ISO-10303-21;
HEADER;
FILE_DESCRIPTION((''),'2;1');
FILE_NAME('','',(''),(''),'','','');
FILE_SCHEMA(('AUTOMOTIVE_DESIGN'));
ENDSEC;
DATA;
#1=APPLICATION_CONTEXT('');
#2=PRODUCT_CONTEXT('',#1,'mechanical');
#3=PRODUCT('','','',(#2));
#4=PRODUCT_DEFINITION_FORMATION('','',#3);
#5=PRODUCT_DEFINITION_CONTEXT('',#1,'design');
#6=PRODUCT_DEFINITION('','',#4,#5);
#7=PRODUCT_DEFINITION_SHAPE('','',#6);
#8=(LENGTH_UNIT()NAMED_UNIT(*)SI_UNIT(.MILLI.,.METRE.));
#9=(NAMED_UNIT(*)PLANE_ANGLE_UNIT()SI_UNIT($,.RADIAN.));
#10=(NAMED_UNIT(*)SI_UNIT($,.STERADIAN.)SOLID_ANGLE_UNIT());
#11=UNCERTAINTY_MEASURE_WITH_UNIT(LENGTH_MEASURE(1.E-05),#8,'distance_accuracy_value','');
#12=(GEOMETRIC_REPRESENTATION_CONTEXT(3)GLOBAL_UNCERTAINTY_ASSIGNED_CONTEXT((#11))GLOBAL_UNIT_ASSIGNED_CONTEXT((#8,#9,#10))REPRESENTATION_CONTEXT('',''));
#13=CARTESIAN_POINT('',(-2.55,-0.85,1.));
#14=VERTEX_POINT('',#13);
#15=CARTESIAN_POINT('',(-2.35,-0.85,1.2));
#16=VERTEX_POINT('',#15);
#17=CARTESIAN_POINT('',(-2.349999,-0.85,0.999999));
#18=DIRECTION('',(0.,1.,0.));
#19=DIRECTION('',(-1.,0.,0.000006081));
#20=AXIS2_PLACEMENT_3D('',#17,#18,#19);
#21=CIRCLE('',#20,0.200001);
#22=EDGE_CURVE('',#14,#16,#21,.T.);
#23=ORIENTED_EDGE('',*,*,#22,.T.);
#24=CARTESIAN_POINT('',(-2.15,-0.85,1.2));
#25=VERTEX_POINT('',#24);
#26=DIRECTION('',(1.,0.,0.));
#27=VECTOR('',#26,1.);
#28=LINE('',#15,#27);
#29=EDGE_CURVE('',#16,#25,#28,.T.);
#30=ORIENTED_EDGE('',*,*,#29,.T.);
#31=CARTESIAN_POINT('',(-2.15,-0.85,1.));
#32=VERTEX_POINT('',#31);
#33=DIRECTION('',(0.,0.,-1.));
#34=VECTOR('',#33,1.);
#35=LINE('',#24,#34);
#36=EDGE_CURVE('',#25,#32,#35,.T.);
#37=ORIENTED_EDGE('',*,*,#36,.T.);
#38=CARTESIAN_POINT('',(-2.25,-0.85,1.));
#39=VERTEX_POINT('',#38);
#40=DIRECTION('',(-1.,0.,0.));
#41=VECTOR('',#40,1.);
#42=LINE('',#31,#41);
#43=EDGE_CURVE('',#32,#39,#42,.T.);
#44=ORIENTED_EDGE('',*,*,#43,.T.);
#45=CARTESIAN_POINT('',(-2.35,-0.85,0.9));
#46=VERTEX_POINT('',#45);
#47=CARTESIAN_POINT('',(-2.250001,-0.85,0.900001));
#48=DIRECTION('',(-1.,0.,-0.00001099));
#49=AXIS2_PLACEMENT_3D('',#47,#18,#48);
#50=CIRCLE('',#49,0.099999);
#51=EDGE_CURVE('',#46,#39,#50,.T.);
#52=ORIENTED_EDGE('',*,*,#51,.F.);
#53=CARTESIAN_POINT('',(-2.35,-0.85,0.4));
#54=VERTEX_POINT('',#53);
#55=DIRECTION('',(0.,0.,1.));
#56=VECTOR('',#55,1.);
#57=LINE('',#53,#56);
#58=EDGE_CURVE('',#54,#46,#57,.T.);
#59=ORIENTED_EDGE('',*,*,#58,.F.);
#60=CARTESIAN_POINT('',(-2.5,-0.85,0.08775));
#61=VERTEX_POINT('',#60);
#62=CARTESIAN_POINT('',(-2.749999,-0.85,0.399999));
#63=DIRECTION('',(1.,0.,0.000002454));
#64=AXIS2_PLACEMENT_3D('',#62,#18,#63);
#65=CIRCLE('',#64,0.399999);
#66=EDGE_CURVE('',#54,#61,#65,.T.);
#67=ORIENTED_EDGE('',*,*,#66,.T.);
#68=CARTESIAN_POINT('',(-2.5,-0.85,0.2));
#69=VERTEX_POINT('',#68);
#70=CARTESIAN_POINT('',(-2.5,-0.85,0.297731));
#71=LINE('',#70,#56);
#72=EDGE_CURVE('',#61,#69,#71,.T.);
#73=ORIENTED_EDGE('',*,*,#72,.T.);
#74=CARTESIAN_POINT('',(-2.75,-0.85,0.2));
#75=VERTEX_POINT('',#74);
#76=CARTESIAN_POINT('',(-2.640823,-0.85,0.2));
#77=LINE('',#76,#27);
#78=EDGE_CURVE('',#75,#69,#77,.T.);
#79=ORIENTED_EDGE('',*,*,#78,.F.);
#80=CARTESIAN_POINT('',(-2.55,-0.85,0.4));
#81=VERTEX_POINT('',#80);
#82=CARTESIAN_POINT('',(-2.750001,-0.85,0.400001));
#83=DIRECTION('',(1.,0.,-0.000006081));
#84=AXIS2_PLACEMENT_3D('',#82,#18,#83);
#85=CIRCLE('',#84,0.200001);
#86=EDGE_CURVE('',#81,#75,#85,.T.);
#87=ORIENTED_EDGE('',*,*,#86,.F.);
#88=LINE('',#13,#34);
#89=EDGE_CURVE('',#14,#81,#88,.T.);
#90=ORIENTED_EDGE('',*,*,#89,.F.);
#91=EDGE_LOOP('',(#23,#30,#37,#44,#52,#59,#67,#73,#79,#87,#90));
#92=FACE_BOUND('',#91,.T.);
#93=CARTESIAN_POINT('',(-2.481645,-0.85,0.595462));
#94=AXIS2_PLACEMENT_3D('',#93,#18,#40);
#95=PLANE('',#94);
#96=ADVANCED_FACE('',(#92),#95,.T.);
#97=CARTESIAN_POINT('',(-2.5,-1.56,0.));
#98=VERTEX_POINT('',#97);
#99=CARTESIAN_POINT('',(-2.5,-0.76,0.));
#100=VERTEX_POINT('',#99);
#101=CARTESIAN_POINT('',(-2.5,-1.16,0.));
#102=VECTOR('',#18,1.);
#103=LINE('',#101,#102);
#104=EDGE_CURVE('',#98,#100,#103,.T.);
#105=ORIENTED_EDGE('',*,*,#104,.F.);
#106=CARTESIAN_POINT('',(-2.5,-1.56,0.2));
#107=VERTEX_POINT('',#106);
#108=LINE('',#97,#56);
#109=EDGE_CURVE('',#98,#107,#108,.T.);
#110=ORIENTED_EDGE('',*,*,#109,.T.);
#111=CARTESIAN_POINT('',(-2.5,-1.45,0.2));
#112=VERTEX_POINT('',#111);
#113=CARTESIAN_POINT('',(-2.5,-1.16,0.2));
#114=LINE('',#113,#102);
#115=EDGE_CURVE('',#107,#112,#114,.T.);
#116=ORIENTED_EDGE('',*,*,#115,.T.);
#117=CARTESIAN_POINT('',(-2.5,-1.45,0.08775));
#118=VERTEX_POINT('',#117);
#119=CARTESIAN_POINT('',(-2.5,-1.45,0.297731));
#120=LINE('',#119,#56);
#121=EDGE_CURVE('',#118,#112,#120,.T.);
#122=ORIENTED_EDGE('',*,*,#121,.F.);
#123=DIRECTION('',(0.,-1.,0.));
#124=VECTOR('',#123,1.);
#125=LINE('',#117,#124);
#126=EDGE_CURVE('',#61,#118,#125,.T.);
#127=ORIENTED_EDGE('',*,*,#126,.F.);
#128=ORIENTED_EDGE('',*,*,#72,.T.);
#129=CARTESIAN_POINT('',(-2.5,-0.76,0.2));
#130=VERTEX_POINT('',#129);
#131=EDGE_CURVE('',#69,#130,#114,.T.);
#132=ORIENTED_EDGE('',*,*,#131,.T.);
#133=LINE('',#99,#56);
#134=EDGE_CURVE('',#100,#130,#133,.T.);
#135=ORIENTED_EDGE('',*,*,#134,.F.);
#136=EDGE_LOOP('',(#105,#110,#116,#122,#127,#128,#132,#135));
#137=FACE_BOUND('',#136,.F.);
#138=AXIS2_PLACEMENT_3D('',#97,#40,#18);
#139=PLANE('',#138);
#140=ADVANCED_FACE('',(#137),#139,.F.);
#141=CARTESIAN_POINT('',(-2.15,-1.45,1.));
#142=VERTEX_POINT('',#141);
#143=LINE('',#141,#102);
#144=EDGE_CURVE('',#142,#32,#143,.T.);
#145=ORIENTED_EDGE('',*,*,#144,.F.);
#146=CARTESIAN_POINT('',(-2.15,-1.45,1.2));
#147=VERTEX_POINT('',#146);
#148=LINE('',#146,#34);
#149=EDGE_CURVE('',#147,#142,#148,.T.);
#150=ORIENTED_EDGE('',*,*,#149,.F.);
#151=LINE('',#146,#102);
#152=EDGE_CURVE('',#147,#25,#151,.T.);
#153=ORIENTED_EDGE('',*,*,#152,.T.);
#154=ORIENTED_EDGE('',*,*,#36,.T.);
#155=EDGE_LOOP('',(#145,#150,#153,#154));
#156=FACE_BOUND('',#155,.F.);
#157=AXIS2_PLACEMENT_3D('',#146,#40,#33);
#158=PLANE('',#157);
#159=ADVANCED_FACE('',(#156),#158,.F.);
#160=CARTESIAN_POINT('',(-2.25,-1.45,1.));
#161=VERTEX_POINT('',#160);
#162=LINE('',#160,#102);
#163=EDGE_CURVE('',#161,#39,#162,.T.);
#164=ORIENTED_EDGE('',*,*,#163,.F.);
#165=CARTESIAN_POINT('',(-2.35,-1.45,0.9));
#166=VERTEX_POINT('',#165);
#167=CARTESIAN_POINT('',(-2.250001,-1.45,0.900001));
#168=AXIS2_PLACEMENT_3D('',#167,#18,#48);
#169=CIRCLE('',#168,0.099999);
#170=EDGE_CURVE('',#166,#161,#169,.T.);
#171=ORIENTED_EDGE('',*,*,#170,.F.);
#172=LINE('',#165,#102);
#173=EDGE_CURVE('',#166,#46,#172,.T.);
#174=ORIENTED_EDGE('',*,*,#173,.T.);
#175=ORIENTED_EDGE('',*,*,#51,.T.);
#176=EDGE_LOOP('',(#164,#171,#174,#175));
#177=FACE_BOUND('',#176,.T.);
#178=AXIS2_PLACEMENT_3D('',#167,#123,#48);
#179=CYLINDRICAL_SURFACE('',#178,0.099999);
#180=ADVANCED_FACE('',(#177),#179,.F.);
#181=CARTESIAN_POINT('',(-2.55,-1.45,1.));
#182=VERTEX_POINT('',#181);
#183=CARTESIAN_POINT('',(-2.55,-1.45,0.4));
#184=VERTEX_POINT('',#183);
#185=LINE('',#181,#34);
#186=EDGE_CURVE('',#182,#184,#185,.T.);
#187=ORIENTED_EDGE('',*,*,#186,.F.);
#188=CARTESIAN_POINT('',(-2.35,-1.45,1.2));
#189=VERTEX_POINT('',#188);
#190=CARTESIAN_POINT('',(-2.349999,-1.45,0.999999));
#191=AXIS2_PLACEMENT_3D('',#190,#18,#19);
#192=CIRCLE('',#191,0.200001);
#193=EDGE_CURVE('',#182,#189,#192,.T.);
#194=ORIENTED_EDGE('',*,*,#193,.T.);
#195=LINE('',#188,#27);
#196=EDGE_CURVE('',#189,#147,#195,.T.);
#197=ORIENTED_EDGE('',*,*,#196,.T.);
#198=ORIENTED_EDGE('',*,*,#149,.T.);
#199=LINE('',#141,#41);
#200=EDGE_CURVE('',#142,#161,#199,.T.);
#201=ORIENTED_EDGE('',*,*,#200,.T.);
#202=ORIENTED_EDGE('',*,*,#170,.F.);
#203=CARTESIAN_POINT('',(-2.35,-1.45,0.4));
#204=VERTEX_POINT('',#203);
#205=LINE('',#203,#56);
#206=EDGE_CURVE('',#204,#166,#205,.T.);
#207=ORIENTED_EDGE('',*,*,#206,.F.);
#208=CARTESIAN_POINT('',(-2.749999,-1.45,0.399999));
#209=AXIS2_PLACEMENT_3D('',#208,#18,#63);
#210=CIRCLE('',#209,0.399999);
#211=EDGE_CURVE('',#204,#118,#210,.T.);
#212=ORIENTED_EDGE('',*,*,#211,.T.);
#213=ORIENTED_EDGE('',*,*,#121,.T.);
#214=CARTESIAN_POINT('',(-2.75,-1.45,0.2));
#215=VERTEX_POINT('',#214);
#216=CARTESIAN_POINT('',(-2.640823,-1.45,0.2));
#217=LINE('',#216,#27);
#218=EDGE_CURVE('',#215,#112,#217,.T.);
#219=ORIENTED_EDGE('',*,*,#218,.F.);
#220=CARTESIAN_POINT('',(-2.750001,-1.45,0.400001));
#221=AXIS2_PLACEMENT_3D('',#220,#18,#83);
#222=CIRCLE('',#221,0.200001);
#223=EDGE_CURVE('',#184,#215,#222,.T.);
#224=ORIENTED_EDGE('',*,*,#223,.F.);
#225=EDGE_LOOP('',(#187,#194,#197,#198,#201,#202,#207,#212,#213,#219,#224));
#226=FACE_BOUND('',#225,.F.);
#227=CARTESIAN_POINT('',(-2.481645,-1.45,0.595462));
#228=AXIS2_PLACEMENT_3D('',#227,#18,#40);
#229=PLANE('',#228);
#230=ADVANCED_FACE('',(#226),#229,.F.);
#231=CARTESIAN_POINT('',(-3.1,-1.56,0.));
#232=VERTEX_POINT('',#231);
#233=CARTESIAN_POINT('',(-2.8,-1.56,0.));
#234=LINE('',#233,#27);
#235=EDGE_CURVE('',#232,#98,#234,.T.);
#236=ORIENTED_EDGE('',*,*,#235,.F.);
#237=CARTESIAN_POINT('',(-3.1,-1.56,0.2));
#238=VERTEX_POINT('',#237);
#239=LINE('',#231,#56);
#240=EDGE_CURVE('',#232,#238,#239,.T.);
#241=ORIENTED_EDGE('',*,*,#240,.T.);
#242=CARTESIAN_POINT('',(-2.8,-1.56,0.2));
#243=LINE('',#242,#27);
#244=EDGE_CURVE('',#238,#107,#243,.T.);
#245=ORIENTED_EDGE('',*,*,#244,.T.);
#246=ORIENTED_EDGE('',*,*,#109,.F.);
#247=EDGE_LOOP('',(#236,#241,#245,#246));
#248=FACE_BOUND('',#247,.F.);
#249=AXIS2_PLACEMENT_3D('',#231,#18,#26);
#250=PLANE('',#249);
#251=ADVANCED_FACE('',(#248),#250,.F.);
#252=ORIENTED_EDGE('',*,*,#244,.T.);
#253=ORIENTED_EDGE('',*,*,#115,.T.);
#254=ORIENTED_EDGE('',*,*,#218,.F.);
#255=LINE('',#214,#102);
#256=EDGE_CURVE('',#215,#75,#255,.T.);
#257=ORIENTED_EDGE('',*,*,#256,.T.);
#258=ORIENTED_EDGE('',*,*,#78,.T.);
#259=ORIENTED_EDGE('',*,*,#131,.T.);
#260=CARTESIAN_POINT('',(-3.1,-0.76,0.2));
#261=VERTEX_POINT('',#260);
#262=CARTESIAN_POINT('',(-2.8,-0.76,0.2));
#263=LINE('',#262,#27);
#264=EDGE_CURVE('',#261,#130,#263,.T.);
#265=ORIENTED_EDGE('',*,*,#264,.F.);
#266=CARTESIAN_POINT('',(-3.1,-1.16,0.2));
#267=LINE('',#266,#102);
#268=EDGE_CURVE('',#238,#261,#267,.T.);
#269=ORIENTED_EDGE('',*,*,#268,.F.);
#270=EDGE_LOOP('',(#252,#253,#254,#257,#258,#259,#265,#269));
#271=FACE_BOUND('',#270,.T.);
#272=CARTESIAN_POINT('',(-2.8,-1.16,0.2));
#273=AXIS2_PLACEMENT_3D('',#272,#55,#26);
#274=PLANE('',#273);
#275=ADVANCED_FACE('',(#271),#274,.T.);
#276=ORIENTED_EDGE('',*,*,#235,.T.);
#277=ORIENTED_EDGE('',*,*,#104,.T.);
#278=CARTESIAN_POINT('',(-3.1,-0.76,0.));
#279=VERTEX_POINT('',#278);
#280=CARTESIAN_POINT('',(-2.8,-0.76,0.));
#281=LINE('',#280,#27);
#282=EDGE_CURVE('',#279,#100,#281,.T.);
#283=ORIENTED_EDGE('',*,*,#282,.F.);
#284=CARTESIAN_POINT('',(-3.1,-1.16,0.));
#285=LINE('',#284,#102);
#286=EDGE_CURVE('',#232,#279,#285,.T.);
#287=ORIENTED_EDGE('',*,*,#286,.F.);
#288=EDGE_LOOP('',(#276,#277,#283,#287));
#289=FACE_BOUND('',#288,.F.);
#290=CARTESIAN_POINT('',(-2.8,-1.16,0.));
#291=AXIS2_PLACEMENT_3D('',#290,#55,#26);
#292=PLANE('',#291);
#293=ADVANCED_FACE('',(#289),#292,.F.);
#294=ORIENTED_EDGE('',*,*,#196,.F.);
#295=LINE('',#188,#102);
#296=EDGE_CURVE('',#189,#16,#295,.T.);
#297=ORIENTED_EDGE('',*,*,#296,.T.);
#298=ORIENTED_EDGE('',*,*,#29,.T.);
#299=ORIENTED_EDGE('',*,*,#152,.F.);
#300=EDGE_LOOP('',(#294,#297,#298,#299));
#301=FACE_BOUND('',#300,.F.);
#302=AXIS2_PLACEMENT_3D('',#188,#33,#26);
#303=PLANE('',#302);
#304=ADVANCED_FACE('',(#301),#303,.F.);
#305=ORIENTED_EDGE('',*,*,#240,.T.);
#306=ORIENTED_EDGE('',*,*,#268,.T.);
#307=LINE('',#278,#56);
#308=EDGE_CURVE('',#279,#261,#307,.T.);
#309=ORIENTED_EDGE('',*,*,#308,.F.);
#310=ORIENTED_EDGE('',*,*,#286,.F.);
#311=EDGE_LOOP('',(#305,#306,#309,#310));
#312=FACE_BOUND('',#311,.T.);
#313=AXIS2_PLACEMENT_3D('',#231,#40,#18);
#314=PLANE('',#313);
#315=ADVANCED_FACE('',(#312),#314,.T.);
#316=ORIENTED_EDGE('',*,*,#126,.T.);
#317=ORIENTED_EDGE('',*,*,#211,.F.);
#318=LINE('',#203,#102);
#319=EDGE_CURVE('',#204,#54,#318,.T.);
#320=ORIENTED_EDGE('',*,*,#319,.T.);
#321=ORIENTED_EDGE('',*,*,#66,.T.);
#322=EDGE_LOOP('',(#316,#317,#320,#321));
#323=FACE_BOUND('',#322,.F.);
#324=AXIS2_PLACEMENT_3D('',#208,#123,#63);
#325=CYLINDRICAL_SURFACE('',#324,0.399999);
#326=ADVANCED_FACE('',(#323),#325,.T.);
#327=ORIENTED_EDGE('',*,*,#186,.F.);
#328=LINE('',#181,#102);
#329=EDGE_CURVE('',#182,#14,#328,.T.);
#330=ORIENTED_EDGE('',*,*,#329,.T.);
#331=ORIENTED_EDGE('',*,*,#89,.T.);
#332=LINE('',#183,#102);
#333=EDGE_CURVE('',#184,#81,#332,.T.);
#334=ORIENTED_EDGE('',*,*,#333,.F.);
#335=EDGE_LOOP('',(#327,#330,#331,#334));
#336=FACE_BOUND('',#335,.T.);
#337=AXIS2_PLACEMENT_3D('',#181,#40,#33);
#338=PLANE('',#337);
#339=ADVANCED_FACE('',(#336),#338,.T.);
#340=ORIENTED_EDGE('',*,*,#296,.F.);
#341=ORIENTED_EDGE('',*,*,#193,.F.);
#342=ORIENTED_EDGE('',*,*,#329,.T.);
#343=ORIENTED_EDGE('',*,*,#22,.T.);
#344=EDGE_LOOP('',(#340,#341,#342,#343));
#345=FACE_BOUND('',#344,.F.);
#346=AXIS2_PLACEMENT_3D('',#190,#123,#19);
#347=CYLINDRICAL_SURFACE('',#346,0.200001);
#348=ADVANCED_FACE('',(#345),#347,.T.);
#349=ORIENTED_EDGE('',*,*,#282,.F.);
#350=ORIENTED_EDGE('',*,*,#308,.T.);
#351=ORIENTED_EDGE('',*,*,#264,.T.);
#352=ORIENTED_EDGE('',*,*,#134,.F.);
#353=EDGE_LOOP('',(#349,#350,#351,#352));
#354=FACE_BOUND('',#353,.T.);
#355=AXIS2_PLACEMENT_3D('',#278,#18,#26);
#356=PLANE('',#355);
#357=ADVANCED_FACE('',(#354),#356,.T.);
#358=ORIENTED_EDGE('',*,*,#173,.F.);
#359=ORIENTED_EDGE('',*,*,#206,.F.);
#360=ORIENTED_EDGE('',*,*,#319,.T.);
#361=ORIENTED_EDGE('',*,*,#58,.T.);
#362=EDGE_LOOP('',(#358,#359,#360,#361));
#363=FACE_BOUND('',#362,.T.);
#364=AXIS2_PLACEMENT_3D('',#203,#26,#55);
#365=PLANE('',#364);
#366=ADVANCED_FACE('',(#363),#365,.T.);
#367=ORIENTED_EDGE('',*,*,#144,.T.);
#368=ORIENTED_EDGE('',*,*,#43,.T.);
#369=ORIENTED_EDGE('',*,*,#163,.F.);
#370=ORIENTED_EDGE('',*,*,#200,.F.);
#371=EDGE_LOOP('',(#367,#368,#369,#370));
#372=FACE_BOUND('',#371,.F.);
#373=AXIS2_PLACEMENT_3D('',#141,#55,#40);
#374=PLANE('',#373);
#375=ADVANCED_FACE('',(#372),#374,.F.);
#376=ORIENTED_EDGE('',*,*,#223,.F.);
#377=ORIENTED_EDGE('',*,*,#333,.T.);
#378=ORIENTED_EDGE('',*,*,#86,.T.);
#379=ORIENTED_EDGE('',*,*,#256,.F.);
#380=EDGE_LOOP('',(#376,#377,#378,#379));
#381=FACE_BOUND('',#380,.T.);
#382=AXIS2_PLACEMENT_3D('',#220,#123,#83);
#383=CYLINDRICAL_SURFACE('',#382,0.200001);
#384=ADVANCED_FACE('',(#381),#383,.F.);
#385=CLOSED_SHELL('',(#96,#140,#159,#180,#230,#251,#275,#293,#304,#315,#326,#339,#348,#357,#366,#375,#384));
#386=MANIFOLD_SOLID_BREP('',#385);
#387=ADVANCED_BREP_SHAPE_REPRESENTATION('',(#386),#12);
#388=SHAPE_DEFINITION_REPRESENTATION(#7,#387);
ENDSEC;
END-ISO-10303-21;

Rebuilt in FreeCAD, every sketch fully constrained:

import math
import FreeCAD as App
import Part
import Sketcher
Q = App.Units.Quantity


def add_polygon(sketch, points):
    """Adds a closed chain of lines whose ends are joined by coincident constraints."""
    first, n = sketch.GeometryCount, len(points)
    for a, b in zip(points, points[1:] + points[:1]):
        sketch.addGeometry(Part.LineSegment(App.Vector(*a, 0), App.Vector(*b, 0)), False)
    for i in range(n):
        sketch.addConstraint(Sketcher.Constraint("Coincident", first + i, 2, first + (i + 1) % n, 1))

doc = App.newDocument("Part")
body = doc.addObject("PartDesign::Body", "Body")

sketch1 = body.newObject("Sketcher::SketchObject", "Sketch")
sketch1.AttachmentSupport = (doc.getObject("XY_Plane"), [""])
sketch1.MapMode = "FlatFace"
add_polygon(sketch1, [(-3.1, -0.76), (-3.1, -1.56), (-2.5, -1.56), (-2.5, -0.76)])
sketch1.addConstraint([
    Sketcher.Constraint("Vertical", 0),
    Sketcher.Constraint("Horizontal", 1),
    Sketcher.Constraint("Vertical", 2),
    Sketcher.Constraint("Horizontal", 3),
    Sketcher.Constraint("DistanceX", 1, 1, 1, 2, Q("0.6 mm")),
    Sketcher.Constraint("DistanceY", 0, 2, 0, 1, Q("0.8 mm")),
    Sketcher.Constraint("DistanceX", 0, 2, -1, 1, Q("3.1 mm")),
    Sketcher.Constraint("DistanceY", 0, 2, -1, 1, Q("1.56 mm")),
])
pad1 = body.newObject("PartDesign::Pad", "Pad")
pad1.Profile = sketch1
pad1.Length = 0.2
body2 = doc.addObject("PartDesign::Body", "Body001")

sketch2 = body2.newObject("Sketcher::SketchObject", "Sketch001")
sketch2.AttachmentSupport = (doc.getObject("XZ_Plane001"), [""])
sketch2.MapMode = "FlatFace"
sketch2.addGeometry([
    Part.ArcOfCircle(Part.Circle(App.Vector(3.499999, 0.999999, 0), App.Vector(0, 0, 1), 0.200001), math.radians(0.000348), math.radians(89.999652)),
    Part.LineSegment(App.Vector(3.5, 1.2, 0), App.Vector(3.3, 1.2, 0)),
    Part.LineSegment(App.Vector(3.3, 1.2, 0), App.Vector(3.3, 1, 0)),
    Part.LineSegment(App.Vector(3.3, 1, 0), App.Vector(3.4, 1, 0)),
    Part.ArcOfCircle(Part.Circle(App.Vector(3.400001, 0.900001, 0), App.Vector(0, 0, 1), 0.099999), math.radians(-0.00063), math.radians(90.00063)),
    Part.LineSegment(App.Vector(3.5, 0.9, 0), App.Vector(3.5, 0.4, 0)),
    Part.ArcOfCircle(Part.Circle(App.Vector(3.899999, 0.399999, 0), App.Vector(0, 0, 1), 0.399999), math.radians(179.999859), math.radians(270.000141)),
    Part.LineSegment(App.Vector(3.9, 0, 0), App.Vector(4, 0, 0)),
    Part.LineSegment(App.Vector(4, 0, 0), App.Vector(4, 0.2, 0)),
    Part.LineSegment(App.Vector(4, 0.2, 0), App.Vector(3.9, 0.2, 0)),
    Part.ArcOfCircle(Part.Circle(App.Vector(3.900001, 0.400001, 0), App.Vector(0, 0, 1), 0.200001), math.radians(-179.999652), math.radians(-90.000348)),
    Part.LineSegment(App.Vector(3.7, 0.4, 0), App.Vector(3.7, 1, 0)),
], False)
sketch2.addConstraint([
    Sketcher.Constraint("Coincident", 0, 2, 1, 1),
    Sketcher.Constraint("Coincident", 1, 2, 2, 1),
    Sketcher.Constraint("Coincident", 2, 2, 3, 1),
    Sketcher.Constraint("Coincident", 3, 2, 4, 2),
    Sketcher.Constraint("Coincident", 4, 1, 5, 1),
    Sketcher.Constraint("Coincident", 5, 2, 6, 1),
    Sketcher.Constraint("Coincident", 6, 2, 7, 1),
    Sketcher.Constraint("Coincident", 7, 2, 8, 1),
    Sketcher.Constraint("Coincident", 8, 2, 9, 1),
    Sketcher.Constraint("Coincident", 9, 2, 10, 2),
    Sketcher.Constraint("Coincident", 10, 1, 11, 1),
    Sketcher.Constraint("Coincident", 11, 2, 0, 1),
    Sketcher.Constraint("Horizontal", 1),
    Sketcher.Constraint("Vertical", 2),
    Sketcher.Constraint("Horizontal", 3),
    Sketcher.Constraint("Vertical", 5),
    Sketcher.Constraint("Horizontal", 7),
    Sketcher.Constraint("Vertical", 8),
    Sketcher.Constraint("Horizontal", 9),
    Sketcher.Constraint("Vertical", 11),
    Sketcher.Constraint("Coincident", 10, 3, 6, 3),
    Sketcher.Constraint("Equal", 0, 10),
    Sketcher.Constraint("PointOnObject", 6, 2, -1),
    Sketcher.Constraint("Horizontal", 0, 3, 2, 2),
    Sketcher.Constraint("Horizontal", 10, 3, 5, 2),
    Sketcher.Constraint("Horizontal", 5, 2, 10, 1),
    Sketcher.Constraint("Horizontal", 3, 2, 11, 2),
    Sketcher.Constraint("Vertical", 4, 3, 3, 2),
    Sketcher.Constraint("Vertical", 0, 2, 4, 1),
    Sketcher.Constraint("Vertical", 10, 3, 6, 2),
    Sketcher.Constraint("Vertical", 6, 2, 9, 2),
    Sketcher.Constraint("Equal", 3, 7),
    Sketcher.Constraint("Equal", 1, 2),
    Sketcher.Constraint("Equal", 2, 8),
    Sketcher.Constraint("Radius", 0, Q("0.200001 mm")),
    Sketcher.Constraint("Radius", 4, Q("0.099999 mm")),
    Sketcher.Constraint("DistanceY", 5, 2, 5, 1, Q("0.5 mm")),
    Sketcher.Constraint("DistanceY", 11, 1, 11, 2, Q("0.6 mm")),
    Sketcher.Constraint("DistanceX", -1, 1, 7, 2, Q("4 mm")),
])
pad2 = body2.newObject("PartDesign::Pad", "Pad001")
pad2.Profile = sketch2
pad2.Length = 0.6
body3 = doc.addObject("PartDesign::Body", "Body002")
doc.recompute()

body2.Placement = App.Placement(App.Vector(1.15, -1.45, 0), App.Rotation(App.Vector(0, 0, 1), 180))
boolean = body3.newObject("PartDesign::Boolean", "Boolean")
boolean.Type = "Fuse"
boolean.addObjects([body2])
doc.recompute()

boolean2 = body3.newObject("PartDesign::Boolean", "Boolean001")
boolean2.Type = "Fuse"
boolean2.addObjects([body])

doc.recompute()
